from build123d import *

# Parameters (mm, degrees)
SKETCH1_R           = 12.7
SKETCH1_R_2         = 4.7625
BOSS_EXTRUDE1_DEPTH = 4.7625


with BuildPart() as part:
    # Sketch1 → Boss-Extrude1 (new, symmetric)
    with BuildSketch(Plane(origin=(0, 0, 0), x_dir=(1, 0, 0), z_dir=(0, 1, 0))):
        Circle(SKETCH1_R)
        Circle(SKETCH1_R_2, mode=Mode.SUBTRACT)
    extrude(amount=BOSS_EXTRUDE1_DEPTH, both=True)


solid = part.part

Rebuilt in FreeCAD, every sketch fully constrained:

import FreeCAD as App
import Part
import Sketcher
Q = App.Units.Quantity

doc = App.newDocument("Part")
params = doc.addObject("Spreadsheet::Sheet", "Params")
for row, (alias, value) in enumerate([
    ("sketch1_diameter", "1 in"),
    ("sketch1_diameter2", "0.375 in"),
    ("pad1_length", "0.375 in"),
], start=1):
    params.set(f"A{row}", alias)
    params.set(f"B{row}", "=" + value)
    params.setAlias(f"B{row}", alias)

body = doc.addObject("PartDesign::Body", "Body")

# Sketch on XZ plane
sketch1 = body.newObject("Sketcher::SketchObject", "Sketch")
sketch1.AttachmentSupport = (doc.getObject("XZ_Plane"), [""])
sketch1.MapMode = "FlatFace"
sketch1.addGeometry([
    Part.Circle(App.Vector(0, 0, 0), App.Vector(0, 0, 1), 12.7),
    Part.Circle(App.Vector(0, 0, 0), App.Vector(0, 0, 1), 4.8),
], False)
sketch1.addConstraint([
    Sketcher.Constraint("Coincident", 0, 3, -1, 1),
    Sketcher.Constraint("Coincident", 1, 3, -1, 1),
    Sketcher.Constraint("Diameter", 0, Q("1 in")),
    Sketcher.Constraint("Diameter", 1, Q("0.375 in")),
])
sketch1.setExpression("Constraints[2]", "Params.sketch1_diameter")
sketch1.setExpression("Constraints[3]", "Params.sketch1_diameter2")
pad1 = body.newObject("PartDesign::Pad", "Pad")
pad1.Profile = sketch1
pad1.setExpression("Length", "Params.pad1_length")
pad1.Midplane = True

doc.recompute()
